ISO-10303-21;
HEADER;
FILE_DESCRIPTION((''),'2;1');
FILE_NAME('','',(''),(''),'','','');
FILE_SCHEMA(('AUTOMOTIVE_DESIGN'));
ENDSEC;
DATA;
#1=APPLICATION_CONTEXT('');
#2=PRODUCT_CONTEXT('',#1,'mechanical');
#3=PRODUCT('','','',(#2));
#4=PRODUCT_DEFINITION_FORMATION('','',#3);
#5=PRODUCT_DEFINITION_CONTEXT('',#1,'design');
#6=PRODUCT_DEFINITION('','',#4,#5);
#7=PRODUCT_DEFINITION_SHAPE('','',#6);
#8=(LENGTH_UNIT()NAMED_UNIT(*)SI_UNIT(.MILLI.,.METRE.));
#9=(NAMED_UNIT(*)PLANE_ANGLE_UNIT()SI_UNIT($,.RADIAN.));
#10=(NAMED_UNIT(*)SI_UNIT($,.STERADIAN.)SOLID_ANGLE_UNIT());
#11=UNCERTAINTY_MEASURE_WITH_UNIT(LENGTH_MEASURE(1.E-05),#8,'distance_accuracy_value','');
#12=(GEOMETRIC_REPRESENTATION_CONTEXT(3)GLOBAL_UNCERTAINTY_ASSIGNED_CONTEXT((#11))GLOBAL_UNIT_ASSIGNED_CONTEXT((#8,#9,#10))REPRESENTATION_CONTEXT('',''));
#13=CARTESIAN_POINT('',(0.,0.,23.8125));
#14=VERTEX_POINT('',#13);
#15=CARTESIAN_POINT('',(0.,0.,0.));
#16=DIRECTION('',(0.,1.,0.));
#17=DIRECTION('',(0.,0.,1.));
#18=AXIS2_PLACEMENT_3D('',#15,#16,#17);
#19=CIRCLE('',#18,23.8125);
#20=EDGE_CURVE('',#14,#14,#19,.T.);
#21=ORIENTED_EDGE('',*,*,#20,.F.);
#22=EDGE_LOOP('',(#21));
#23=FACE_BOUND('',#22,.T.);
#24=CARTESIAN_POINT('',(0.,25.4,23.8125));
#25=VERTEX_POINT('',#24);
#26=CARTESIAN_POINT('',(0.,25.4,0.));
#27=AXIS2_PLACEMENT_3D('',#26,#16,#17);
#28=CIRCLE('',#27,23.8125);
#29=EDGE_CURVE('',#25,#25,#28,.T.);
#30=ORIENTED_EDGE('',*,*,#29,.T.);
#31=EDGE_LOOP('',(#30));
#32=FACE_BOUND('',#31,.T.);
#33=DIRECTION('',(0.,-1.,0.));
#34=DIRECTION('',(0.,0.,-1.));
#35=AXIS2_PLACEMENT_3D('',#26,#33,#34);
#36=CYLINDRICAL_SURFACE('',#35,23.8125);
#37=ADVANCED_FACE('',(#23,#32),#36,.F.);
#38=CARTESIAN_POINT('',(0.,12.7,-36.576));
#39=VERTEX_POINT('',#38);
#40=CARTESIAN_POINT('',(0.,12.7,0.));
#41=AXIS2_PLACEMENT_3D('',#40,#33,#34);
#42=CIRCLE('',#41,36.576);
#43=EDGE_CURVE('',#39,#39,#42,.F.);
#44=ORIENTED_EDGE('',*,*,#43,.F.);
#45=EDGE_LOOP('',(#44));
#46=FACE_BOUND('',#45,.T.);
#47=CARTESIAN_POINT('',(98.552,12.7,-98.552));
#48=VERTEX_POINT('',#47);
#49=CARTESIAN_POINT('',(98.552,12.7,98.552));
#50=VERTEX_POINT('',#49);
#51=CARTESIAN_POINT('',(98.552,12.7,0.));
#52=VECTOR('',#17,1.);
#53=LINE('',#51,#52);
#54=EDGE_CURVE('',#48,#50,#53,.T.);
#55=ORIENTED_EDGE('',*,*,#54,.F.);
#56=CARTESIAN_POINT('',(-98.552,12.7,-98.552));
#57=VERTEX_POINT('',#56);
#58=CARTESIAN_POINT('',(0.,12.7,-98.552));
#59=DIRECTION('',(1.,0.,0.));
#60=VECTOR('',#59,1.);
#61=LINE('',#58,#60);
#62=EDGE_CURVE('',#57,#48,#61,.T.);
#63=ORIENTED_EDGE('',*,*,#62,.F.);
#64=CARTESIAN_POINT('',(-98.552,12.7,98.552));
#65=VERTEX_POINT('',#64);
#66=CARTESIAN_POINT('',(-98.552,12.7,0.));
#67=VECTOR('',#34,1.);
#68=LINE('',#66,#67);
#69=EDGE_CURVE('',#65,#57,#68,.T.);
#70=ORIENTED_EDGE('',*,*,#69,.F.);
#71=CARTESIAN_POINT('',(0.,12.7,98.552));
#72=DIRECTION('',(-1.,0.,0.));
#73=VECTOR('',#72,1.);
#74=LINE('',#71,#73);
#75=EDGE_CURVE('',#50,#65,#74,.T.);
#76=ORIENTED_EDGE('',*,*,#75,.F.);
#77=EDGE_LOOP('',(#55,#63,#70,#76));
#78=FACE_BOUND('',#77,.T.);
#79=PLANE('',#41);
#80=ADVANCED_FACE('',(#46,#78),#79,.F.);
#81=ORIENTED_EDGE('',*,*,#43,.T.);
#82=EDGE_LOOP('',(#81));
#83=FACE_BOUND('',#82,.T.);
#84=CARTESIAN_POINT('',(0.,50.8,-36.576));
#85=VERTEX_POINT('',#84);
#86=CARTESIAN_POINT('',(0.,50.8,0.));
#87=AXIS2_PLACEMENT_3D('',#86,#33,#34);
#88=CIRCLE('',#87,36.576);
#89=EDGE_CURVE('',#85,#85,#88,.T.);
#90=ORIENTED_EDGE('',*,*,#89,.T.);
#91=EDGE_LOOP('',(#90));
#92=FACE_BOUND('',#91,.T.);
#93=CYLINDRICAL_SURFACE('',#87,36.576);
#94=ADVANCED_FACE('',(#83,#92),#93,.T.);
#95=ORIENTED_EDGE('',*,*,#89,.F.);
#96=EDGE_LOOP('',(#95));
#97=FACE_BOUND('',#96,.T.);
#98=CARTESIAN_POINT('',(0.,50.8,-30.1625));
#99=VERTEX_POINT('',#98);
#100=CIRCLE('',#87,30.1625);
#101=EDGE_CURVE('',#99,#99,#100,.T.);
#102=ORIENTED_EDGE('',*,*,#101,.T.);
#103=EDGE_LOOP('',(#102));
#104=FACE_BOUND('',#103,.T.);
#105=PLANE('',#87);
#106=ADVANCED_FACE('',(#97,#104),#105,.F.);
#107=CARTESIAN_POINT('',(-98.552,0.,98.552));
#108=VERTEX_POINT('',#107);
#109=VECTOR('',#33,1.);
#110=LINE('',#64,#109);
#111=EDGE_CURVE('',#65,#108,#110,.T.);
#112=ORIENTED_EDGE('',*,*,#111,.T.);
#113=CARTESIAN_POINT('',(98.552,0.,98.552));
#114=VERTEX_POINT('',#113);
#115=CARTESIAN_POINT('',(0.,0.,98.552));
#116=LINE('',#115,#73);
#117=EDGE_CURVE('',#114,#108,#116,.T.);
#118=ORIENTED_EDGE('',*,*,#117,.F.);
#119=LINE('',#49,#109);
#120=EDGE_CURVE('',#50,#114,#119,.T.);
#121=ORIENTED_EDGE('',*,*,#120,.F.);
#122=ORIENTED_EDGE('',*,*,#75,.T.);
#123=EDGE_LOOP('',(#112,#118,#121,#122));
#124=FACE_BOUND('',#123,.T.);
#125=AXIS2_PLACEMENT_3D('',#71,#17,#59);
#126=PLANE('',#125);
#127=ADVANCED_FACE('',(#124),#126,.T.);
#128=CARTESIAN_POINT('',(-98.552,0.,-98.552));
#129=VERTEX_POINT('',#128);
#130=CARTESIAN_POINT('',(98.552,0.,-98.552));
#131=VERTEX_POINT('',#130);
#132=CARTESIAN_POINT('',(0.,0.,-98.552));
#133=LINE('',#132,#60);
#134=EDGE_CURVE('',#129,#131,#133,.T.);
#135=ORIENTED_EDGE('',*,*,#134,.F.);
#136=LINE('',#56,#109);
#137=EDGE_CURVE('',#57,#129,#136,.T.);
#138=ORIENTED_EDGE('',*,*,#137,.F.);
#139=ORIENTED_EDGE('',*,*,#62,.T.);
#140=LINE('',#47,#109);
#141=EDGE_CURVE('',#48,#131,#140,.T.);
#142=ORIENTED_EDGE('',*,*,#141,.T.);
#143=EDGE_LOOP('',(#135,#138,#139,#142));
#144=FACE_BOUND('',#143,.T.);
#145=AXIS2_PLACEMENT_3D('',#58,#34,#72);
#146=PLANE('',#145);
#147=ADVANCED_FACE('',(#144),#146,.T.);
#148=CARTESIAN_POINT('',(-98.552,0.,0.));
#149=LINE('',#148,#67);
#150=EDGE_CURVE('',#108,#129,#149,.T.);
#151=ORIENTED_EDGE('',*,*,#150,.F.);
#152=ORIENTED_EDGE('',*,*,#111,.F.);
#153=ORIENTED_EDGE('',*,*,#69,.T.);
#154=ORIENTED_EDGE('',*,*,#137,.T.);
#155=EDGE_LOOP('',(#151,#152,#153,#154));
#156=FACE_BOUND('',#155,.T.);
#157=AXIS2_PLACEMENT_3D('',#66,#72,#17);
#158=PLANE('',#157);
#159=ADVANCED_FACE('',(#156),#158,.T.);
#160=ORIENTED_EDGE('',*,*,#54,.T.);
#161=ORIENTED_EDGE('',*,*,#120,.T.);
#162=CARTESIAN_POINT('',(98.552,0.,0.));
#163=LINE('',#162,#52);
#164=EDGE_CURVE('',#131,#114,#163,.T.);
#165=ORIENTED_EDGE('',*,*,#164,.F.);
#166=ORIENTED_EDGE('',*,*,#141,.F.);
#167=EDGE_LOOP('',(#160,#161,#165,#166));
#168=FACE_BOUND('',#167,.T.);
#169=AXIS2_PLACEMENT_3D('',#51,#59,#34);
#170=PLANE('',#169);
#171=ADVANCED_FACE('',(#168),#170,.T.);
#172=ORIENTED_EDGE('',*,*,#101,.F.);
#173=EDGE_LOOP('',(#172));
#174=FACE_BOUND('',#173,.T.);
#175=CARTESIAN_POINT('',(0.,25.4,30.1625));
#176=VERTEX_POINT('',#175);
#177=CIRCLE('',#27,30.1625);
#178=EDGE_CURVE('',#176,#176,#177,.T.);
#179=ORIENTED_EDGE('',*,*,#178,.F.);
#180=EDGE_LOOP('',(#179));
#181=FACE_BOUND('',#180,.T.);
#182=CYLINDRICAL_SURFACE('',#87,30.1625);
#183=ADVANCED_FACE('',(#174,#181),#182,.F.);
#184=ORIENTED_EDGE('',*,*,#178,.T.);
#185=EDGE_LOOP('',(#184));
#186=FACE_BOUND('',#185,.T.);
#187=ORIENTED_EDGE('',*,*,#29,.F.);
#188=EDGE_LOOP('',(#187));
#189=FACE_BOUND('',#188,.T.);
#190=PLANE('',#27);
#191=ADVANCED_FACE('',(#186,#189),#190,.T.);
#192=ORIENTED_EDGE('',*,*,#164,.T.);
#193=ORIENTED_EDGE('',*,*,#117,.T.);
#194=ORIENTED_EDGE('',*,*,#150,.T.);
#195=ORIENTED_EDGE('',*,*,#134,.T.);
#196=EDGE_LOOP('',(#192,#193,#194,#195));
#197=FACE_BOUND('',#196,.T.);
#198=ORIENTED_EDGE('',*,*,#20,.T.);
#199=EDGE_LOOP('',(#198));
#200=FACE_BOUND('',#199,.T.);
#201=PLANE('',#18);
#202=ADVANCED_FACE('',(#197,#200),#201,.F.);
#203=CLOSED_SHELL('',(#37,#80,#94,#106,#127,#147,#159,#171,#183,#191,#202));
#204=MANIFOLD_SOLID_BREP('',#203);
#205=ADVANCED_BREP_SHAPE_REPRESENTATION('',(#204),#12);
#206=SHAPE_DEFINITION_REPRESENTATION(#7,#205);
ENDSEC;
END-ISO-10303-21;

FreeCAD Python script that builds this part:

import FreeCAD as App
import Part
import Sketcher
Q = App.Units.Quantity

doc = App.newDocument("Part")
body = doc.addObject("PartDesign::Body", "Body")

sketch1 = doc.addObject("Sketcher::SketchObject", "Sketch")
body.addObject(sketch1)
sketch1.AttachmentSupport = (doc.XZ_Plane, [""])
sketch1.MapMode = "FlatFace"
sketch1.addGeometry(Part.Circle(App.Vector(0, 0, 0), App.Vector(0, 0, 1), 30), False)
sketch1.addGeometry(Part.Circle(App.Vector(0, 0, 0), App.Vector(0, 0, 1), 24), False)
sketch1.addConstraint(Sketcher.Constraint("Coincident", 0, 3, -1, 1))
sketch1.addConstraint(Sketcher.Constraint("Coincident", 1, 3, -1, 1))
sketch1.addConstraint(Sketcher.Constraint("Diameter", 0, Q("2.375 in")))
sketch1.addConstraint(Sketcher.Constraint("Diameter", 1, Q("1.875 in")))
pad1 = doc.addObject("PartDesign::Pad", "Pad")
body.addObject(pad1)
pad1.Profile = sketch1
pad1.Length = Q("1 in")
pad1.Reversed = True

sketch2 = doc.addObject("Sketcher::SketchObject", "Sketch001")
body.addObject(sketch2)
sketch2.AttachmentSupport = (doc.XZ_Plane, [""])
sketch2.MapMode = "FlatFace"
sketch2.addGeometry(Part.Circle(App.Vector(0, 0, 0), App.Vector(0, 0, 1), 37), False)
sketch2.addGeometry(Part.Circle(App.Vector(0, 0, 0), App.Vector(0, 0, 1), 30), False)
sketch2.addConstraint(Sketcher.Constraint("Coincident", 0, 3, -1, 1))
sketch2.addConstraint(Sketcher.Constraint("Coincident", 1, 3, -1, 1))
sketch2.addConstraint(Sketcher.Constraint("Diameter", 0, Q("2.88 in")))
sketch2.addConstraint(Sketcher.Constraint("Diameter", 1, Q("2.375 in")))
pad2 = doc.addObject("PartDesign::Pad", "Pad001")
body.addObject(pad2)
pad2.Profile = sketch2
pad2.Length = Q("2 in")
pad2.Reversed = True

sketch3 = doc.addObject("Sketcher::SketchObject", "Sketch002")
body.addObject(sketch3)
sketch3.AttachmentSupport = (doc.XZ_Plane, [""])
sketch3.MapMode = "FlatFace"
sketch3.addGeometry(Part.LineSegment(App.Vector(-99, 99, 0), App.Vector(-99, -99, 0)), False)
sketch3.addGeometry(Part.LineSegment(App.Vector(-99, -99, 0), App.Vector(99, -99, 0)), False)
sketch3.addGeometry(Part.LineSegment(App.Vector(99, -99, 0), App.Vector(99, 99, 0)), False)
sketch3.addGeometry(Part.LineSegment(App.Vector(99, 99, 0), App.Vector(-99, 99, 0)), False)
sketch3.addGeometry(Part.Circle(App.Vector(0, 0, 0), App.Vector(0, 0, 1), 24), False)
sketch3.addConstraint(Sketcher.Constraint("Coincident", 0, 2, 1, 1))
sketch3.addConstraint(Sketcher.Constraint("Coincident", 1, 2, 2, 1))
sketch3.addConstraint(Sketcher.Constraint("Coincident", 2, 2, 3, 1))
sketch3.addConstraint(Sketcher.Constraint("Coincident", 3, 2, 0, 1))
sketch3.addConstraint(Sketcher.Constraint("Vertical", 0))
sketch3.addConstraint(Sketcher.Constraint("Horizontal", 1))
sketch3.addConstraint(Sketcher.Constraint("Vertical", 2))
sketch3.addConstraint(Sketcher.Constraint("Horizontal", 3))
sketch3.addConstraint(Sketcher.Constraint("Coincident", 4, 3, -1, 1))
sketch3.addConstraint(Sketcher.Constraint("Symmetric", 0, 2, 2, 2, -1, 1))
sketch3.addConstraint(Sketcher.Constraint("Equal", 3, 0))
sketch3.addConstraint(Sketcher.Constraint("Diameter", 4, Q("1.875 in")))
sketch3.addConstraint(Sketcher.Constraint("DistanceX", 1, 1, 1, 2, Q("7.76 in")))
pad3 = doc.addObject("PartDesign::Pad", "Pad002")
body.addObject(pad3)
pad3.Profile = sketch3
pad3.Length = Q("0.5 in")
pad3.Reversed = True

doc.recompute()
